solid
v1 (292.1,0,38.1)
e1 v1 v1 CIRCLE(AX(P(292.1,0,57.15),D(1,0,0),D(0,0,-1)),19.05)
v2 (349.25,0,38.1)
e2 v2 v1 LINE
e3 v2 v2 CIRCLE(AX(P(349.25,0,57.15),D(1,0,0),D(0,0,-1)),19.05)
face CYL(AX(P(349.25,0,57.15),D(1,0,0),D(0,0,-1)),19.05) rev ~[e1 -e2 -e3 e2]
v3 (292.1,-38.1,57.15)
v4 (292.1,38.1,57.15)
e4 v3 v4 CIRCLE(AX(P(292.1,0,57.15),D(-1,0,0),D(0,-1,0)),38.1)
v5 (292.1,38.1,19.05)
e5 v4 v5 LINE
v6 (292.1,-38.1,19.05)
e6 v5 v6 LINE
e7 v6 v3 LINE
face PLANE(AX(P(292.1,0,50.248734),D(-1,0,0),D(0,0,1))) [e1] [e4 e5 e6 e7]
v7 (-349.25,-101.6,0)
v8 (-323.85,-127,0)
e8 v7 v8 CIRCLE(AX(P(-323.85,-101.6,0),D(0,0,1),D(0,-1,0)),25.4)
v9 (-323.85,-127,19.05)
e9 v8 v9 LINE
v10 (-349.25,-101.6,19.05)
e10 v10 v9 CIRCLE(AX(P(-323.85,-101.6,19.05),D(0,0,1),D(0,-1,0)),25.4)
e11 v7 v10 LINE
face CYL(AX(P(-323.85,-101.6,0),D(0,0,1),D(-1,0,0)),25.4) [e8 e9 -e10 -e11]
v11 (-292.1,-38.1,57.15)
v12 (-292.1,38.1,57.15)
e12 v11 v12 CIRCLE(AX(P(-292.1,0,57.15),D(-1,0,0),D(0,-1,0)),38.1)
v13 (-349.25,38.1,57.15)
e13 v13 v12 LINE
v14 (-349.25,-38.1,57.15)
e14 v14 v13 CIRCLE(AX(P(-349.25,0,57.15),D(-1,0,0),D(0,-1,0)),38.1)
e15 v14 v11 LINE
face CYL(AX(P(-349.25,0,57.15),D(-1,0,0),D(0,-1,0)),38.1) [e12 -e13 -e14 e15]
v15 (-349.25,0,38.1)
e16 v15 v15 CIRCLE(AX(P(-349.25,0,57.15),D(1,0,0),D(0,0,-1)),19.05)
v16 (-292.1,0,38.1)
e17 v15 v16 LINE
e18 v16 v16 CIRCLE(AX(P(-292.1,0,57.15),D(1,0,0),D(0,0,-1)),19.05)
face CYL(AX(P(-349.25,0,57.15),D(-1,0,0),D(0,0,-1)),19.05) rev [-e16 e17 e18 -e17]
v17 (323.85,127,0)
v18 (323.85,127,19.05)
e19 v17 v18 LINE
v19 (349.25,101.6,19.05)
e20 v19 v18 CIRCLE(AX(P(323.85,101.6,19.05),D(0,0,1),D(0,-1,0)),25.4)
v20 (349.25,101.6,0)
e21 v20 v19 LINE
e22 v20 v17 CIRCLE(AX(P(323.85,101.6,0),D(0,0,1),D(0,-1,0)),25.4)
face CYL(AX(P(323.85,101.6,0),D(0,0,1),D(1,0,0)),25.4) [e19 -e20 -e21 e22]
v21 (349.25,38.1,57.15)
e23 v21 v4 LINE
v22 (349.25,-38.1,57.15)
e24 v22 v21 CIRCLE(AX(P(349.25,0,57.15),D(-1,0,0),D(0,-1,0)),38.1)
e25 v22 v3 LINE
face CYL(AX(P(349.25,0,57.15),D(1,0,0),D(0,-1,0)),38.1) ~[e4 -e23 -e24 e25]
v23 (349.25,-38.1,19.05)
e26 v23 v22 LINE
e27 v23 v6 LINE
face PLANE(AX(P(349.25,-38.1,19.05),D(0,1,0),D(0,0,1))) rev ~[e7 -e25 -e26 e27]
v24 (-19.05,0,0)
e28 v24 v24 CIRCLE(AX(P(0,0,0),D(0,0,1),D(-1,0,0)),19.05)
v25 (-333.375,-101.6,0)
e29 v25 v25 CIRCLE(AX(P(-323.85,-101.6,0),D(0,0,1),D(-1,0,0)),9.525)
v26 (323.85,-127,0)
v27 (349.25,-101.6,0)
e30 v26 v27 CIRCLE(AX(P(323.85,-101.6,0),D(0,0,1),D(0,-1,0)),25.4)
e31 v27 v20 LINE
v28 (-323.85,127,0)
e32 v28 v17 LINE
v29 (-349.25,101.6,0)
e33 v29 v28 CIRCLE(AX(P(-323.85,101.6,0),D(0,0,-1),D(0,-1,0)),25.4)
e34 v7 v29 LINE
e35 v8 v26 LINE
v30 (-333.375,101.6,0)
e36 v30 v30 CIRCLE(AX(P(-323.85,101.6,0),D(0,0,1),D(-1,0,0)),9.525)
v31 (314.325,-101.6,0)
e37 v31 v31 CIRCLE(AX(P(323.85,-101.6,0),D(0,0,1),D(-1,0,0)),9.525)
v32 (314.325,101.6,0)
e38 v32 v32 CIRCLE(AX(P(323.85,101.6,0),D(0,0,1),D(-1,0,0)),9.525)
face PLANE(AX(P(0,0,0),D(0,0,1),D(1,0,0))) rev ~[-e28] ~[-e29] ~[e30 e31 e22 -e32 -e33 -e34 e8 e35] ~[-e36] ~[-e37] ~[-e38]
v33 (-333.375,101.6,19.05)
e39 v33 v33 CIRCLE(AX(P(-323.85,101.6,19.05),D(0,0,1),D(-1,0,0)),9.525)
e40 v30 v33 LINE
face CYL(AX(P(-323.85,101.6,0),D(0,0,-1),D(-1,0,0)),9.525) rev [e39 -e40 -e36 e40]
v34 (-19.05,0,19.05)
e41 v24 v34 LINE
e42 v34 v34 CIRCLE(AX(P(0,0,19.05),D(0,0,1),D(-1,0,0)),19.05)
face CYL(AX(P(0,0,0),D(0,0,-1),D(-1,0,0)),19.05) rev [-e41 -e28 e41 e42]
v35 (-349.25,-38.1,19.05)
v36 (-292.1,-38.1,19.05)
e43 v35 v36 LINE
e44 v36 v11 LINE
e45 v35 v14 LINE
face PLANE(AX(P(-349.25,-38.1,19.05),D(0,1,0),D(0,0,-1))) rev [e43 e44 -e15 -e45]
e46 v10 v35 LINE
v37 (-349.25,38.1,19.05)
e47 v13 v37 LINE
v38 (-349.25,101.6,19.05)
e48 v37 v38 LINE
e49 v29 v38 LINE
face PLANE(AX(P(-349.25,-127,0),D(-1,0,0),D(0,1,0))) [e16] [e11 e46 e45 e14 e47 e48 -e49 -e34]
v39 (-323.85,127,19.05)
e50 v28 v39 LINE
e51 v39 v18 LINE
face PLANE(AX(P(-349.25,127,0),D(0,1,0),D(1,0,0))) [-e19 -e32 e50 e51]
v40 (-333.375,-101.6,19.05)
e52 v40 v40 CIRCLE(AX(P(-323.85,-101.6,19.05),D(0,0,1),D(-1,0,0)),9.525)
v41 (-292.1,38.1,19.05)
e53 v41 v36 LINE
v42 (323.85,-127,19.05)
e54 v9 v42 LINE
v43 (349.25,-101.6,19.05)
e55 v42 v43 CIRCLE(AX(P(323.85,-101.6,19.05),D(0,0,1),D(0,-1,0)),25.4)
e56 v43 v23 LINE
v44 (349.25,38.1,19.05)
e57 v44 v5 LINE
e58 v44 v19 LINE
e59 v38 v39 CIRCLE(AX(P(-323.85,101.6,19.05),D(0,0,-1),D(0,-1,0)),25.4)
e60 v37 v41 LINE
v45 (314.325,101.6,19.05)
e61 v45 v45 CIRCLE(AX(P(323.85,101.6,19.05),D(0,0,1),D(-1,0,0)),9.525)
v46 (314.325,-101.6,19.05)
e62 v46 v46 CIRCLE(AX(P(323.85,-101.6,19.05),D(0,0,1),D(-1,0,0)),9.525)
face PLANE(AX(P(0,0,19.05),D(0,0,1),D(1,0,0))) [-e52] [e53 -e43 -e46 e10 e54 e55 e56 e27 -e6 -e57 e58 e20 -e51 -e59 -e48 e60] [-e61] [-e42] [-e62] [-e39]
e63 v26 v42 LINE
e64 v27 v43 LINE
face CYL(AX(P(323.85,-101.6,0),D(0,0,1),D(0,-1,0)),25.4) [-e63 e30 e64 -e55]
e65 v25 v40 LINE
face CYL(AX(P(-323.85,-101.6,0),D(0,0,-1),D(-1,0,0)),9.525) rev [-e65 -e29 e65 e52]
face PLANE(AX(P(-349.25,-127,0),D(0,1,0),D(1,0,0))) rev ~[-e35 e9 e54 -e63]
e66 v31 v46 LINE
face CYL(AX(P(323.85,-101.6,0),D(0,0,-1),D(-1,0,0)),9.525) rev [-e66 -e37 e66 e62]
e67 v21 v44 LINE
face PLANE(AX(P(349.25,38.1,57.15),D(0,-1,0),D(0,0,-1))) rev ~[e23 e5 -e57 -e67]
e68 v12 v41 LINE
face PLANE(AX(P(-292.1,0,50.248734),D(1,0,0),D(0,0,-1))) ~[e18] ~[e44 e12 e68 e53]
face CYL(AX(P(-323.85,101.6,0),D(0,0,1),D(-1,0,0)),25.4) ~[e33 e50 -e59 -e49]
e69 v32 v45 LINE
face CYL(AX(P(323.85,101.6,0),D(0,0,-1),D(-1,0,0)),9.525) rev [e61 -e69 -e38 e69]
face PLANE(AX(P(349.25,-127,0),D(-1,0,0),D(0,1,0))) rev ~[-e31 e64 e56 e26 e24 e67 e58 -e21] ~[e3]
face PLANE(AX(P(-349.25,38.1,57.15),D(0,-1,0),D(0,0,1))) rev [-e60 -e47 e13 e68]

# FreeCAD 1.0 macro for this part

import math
import FreeCAD as App
import Part
import Sketcher
Q = App.Units.Quantity


def edges_at(feature, points):
    """Names of the edges that pass closest to the given points."""
    edges = feature.Shape.Edges
    near = lambda p: min(range(len(edges)), key=lambda i: edges[i].distToShape(Part.Vertex(*p))[0])
    return sorted({f"Edge{near(p) + 1}" for p in points})


def add_polygon(sketch, points):
    """Adds a closed chain of lines whose ends are joined by coincident constraints."""
    first, n = sketch.GeometryCount, len(points)
    for a, b in zip(points, points[1:] + points[:1]):
        sketch.addGeometry(Part.LineSegment(App.Vector(*a, 0), App.Vector(*b, 0)), False)
    for i in range(n):
        sketch.addConstraint(Sketcher.Constraint("Coincident", first + i, 2, first + (i + 1) % n, 1))

doc = App.newDocument("Part")
body = doc.addObject("PartDesign::Body", "Body")

sketch1 = doc.addObject("Sketcher::SketchObject", "Sketch")
body.addObject(sketch1)
sketch1.AttachmentSupport = (doc.XY_Plane, [""])
sketch1.MapMode = "FlatFace"
add_polygon(sketch1, [(-349, 127), (-349, -127), (349, -127), (349, 127)])
sketch1.addGeometry(Part.Circle(App.Vector(-324, -102, 0), App.Vector(0, 0, 1), 10), False)
sketch1.addGeometry(Part.Circle(App.Vector(324, -102, 0), App.Vector(0, 0, 1), 10), False)
sketch1.addGeometry(Part.Circle(App.Vector(-324, 102, 0), App.Vector(0, 0, 1), 10), False)
sketch1.addGeometry(Part.Circle(App.Vector(0, 0, 0), App.Vector(0, 0, 1), 19), False)
sketch1.addGeometry(Part.Circle(App.Vector(324, 102, 0), App.Vector(0, 0, 1), 10), False)
sketch1.addConstraint(Sketcher.Constraint("Vertical", 0))
sketch1.addConstraint(Sketcher.Constraint("Horizontal", 1))
sketch1.addConstraint(Sketcher.Constraint("Vertical", 2))
sketch1.addConstraint(Sketcher.Constraint("Horizontal", 3))
sketch1.addConstraint(Sketcher.Constraint("Coincident", 7, 3, -1, 1))
sketch1.addConstraint(Sketcher.Constraint("Equal", 4, 5))
sketch1.addConstraint(Sketcher.Constraint("Equal", 5, 6))
sketch1.addConstraint(Sketcher.Constraint("Equal", 6, 8))
sketch1.addConstraint(Sketcher.Constraint("Symmetric", 5, 3, 6, 3, -1, 1))
sketch1.addConstraint(Sketcher.Constraint("Symmetric", 4, 3, 8, 3, -1, 1))
sketch1.addConstraint(Sketcher.Constraint("Symmetric", 0, 2, 2, 2, -1, 1))
sketch1.addConstraint(Sketcher.Constraint("Symmetric", 4, 3, 5, 3, -2))
sketch1.addConstraint(Sketcher.Constraint("Diameter", 7, Q("1.5 in")))
sketch1.addConstraint(Sketcher.Constraint("Diameter", 4, Q("0.75 in")))
sketch1.addConstraint(Sketcher.Constraint("DistanceY", 0, 2, 0, 1, Q("10 in")))
sketch1.addConstraint(Sketcher.Constraint("DistanceX", 1, 1, 1, 2, Q("27.5 in")))
sketch1.addConstraint(Sketcher.Constraint("DistanceY", 4, 3, -1, 1, Q("4 in")))
sketch1.addConstraint(Sketcher.Constraint("DistanceX", 0, 2, 4, 3, Q("1 in")))
pad1 = doc.addObject("PartDesign::Pad", "Pad")
body.addObject(pad1)
pad1.Profile = sketch1
pad1.Length = Q("0.75 in")
doc.recompute()

fillet = doc.addObject("PartDesign::Fillet", "Fillet")
body.addObject(fillet)
fillet.Base = (pad1, edges_at(pad1, [(-349.25, 127, 9.525)]))
fillet.Radius = Q("1 in")
doc.recompute()

fillet2 = doc.addObject("PartDesign::Fillet", "Fillet001")
body.addObject(fillet2)
fillet2.Base = (fillet, edges_at(fillet, [(-349.25, -127, 9.525)]))
fillet2.Radius = Q("1 in")
doc.recompute()

fillet3 = doc.addObject("PartDesign::Fillet", "Fillet002")
body.addObject(fillet3)
fillet3.Base = (fillet2, edges_at(fillet2, [(349.25, -127, 9.525)]))
fillet3.Radius = Q("1 in")
doc.recompute()

fillet4 = doc.addObject("PartDesign::Fillet", "Fillet003")
body.addObject(fillet4)
fillet4.Base = (fillet3, edges_at(fillet3, [(349.25, 127, 9.525)]))
fillet4.Radius = Q("1 in")

sketch2 = doc.addObject("Sketcher::SketchObject", "Sketch001")
body.addObject(sketch2)
sketch2.AttachmentSupport = (doc.YZ_Plane, [""])
sketch2.MapMode = "FlatFace"
sketch2.AttachmentOffset = App.Placement(App.Vector(0, 0, 13.75 * 25.4), App.Rotation())
sketch2.addGeometry(Part.LineSegment(App.Vector(-38, 19, 0), App.Vector(38, 19, 0)), False)
sketch2.addGeometry(Part.LineSegment(App.Vector(38, 19, 0), App.Vector(38, 57, 0)), False)
sketch2.addGeometry(Part.ArcOfCircle(Part.Circle(App.Vector(0, 57, 0), App.Vector(0, 0, 1), 38), math.radians(0), math.radians(180)), False)
sketch2.addGeometry(Part.LineSegment(App.Vector(-38, 57, 0), App.Vector(-38, 19, 0)), False)
sketch2.addGeometry(Part.Circle(App.Vector(0, 57, 0), App.Vector(0, 0, 1), 19), False)
sketch2.addConstraint(Sketcher.Constraint("Coincident", 0, 2, 1, 1))
sketch2.addConstraint(Sketcher.Constraint("Tangent", 1, 2, 2, 1))
sketch2.addConstraint(Sketcher.Constraint("Tangent", 2, 2, 3, 1))
sketch2.addConstraint(Sketcher.Constraint("Coincident", 3, 2, 0, 1))
sketch2.addConstraint(Sketcher.Constraint("Horizontal", 0))
sketch2.addConstraint(Sketcher.Constraint("Vertical", 1))
sketch2.addConstraint(Sketcher.Constraint("Vertical", 3))
sketch2.addConstraint(Sketcher.Constraint("Coincident", 4, 3, 2, 3))
sketch2.addConstraint(Sketcher.Constraint("PointOnObject", 2, 3, -2))
sketch2.addConstraint(Sketcher.Constraint("Diameter", 4, Q("1.5 in")))
sketch2.addConstraint(Sketcher.Constraint("Radius", 2, Q("1.5 in")))
sketch2.addConstraint(Sketcher.Constraint("DistanceY", 1, 1, 1, 2, Q("1.5 in")))
sketch2.addConstraint(Sketcher.Constraint("DistanceY", -1, 1, 2, 3, Q("2.25 in")))
pad2 = doc.addObject("PartDesign::Pad", "Pad001")
body.addObject(pad2)
pad2.Profile = sketch2
pad2.Length = Q("2.25 in")
pad2.Reversed = True
doc.recompute()

mirrored = doc.addObject("PartDesign::Mirrored", "Mirrored")
body.addObject(mirrored)
mirrored.Originals = [pad2]
mirrored.MirrorPlane = (doc.YZ_Plane, [""])
body.Tip = mirrored

doc.recompute()
